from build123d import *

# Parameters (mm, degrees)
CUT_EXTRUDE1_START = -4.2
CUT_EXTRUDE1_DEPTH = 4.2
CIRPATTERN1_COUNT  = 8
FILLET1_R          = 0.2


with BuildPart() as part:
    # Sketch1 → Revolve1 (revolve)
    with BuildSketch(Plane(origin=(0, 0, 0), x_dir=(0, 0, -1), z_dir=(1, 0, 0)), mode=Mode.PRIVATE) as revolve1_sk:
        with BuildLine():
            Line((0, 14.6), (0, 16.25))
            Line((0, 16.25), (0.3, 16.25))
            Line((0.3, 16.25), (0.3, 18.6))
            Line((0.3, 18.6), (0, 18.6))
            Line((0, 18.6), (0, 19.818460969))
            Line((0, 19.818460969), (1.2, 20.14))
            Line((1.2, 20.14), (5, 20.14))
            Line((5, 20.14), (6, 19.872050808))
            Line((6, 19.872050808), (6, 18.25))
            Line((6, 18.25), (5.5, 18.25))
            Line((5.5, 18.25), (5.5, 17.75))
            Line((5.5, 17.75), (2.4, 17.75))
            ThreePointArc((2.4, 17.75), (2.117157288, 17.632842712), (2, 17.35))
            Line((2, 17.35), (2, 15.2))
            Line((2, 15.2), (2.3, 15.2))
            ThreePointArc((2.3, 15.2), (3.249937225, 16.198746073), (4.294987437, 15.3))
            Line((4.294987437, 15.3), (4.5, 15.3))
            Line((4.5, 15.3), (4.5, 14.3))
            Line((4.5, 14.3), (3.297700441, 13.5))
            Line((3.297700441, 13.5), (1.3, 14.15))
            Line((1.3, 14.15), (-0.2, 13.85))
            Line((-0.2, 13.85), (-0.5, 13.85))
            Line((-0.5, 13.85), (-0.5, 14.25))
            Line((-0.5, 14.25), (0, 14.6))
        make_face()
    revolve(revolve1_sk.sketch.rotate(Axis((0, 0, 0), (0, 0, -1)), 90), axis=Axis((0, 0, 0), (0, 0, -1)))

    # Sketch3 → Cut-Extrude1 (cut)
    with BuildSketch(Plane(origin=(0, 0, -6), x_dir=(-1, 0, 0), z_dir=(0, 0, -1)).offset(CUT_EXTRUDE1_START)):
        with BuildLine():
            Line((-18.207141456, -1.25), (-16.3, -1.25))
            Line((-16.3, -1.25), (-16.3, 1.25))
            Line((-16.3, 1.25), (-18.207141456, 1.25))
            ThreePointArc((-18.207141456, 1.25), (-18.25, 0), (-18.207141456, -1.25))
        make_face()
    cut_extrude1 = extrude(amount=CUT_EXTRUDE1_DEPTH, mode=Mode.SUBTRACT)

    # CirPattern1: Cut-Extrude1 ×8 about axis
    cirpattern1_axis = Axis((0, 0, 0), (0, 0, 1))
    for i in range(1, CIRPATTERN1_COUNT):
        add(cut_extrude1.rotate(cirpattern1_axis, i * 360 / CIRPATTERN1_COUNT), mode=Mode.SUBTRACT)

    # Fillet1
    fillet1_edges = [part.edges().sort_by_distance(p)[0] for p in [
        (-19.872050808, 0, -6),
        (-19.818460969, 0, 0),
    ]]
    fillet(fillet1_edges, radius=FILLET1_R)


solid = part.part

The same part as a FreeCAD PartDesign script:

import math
import FreeCAD as App
import Part
import Sketcher
Q = App.Units.Quantity


def edges_at(feature, points):
    """Names of the edges that pass closest to the given points."""
    edges = feature.Shape.Edges
    near = lambda p: min(range(len(edges)), key=lambda i: edges[i].distToShape(Part.Vertex(*p))[0])
    return sorted({f"Edge{near(p) + 1}" for p in points})

doc = App.newDocument("Part")
params = doc.addObject("Spreadsheet::Sheet", "Params")
for row, (alias, value) in enumerate([
    ("sketch1_radius", "1 mm"),
    ("sketch1_radius2", "0.4 mm"),
    ("sketch1_width", "1 mm"),
    ("sketch1_width2", "0.4 mm"),
    ("sketch1_width3", "0.5 mm"),
    ("revolution_angle", "360 deg"),
    ("sketch2_radius", "18.25 mm"),
    ("sketch2_height", "2.5 mm"),
    ("pocket1_length", "4.2 mm"),
    ("fillet_radius", "0.2 mm"),
], start=1):
    params.set(f"A{row}", alias)
    params.set(f"B{row}", "=" + value)
    params.setAlias(f"B{row}", alias)

body = doc.addObject("PartDesign::Body", "Body")

sketch1 = body.newObject("Sketcher::SketchObject", "Sketch")
sketch1.AttachmentSupport = (doc.getObject("YZ_Plane"), [""])
sketch1.MapMode = "FlatFace"
sketch1.addGeometry(Part.LineSegment(App.Vector(16.25, 0, 0), App.Vector(14.6, 0, 0)), False)
sketch1.addGeometry(Part.LineSegment(App.Vector(14.6, 0, 0), App.Vector(14.25, 0.5, 0)), False)
sketch1.addGeometry(Part.LineSegment(App.Vector(14.25, 0.5, 0), App.Vector(13.85, 0.5, 0)), False)
sketch1.addGeometry(Part.LineSegment(App.Vector(13.85, 0.5, 0), App.Vector(13.85, 0.2, 0)), False)
sketch1.addGeometry(Part.LineSegment(App.Vector(13.85, 0.2, 0), App.Vector(14.15, -1.3, 0)), False)
sketch1.addGeometry(Part.LineSegment(App.Vector(14.15, -1.3, 0), App.Vector(13.5, -3.2977, 0)), False)
sketch1.addGeometry(Part.LineSegment(App.Vector(13.5, -3.2977, 0), App.Vector(14.3, -4.5, 0)), False)
sketch1.addGeometry(Part.LineSegment(App.Vector(14.3, -4.5, 0), App.Vector(15.3, -4.5, 0)), False)
sketch1.addGeometry(Part.LineSegment(App.Vector(15.3, -4.5, 0), App.Vector(15.3, -4.294987, 0)), False)
sketch1.addGeometry(Part.ArcOfCircle(Part.Circle(App.Vector(15.2, -3.3, 0), App.Vector(0, 0, 1), 1), math.radians(-84.26083), math.radians(90)), False)
sketch1.addGeometry(Part.LineSegment(App.Vector(15.2, -2.3, 0), App.Vector(15.2, -2, 0)), False)
sketch1.addGeometry(Part.LineSegment(App.Vector(15.2, -2, 0), App.Vector(17.35, -2, 0)), False)
sketch1.addGeometry(Part.ArcOfCircle(Part.Circle(App.Vector(17.35, -2.4, 0), App.Vector(0, 0, 1), 0.4), math.radians(0), math.radians(90)), False)
sketch1.addGeometry(Part.LineSegment(App.Vector(17.75, -2.4, 0), App.Vector(17.75, -5.5, 0)), False)
sketch1.addGeometry(Part.LineSegment(App.Vector(17.75, -5.5, 0), App.Vector(18.25, -5.5, 0)), False)
sketch1.addGeometry(Part.LineSegment(App.Vector(18.25, -5.5, 0), App.Vector(18.25, -6, 0)), False)
sketch1.addGeometry(Part.LineSegment(App.Vector(18.25, -6, 0), App.Vector(19.872051, -6, 0)), False)
sketch1.addGeometry(Part.LineSegment(App.Vector(19.872051, -6, 0), App.Vector(20.14, -5, 0)), False)
sketch1.addGeometry(Part.LineSegment(App.Vector(20.14, -5, 0), App.Vector(20.14, -1.2, 0)), False)
sketch1.addGeometry(Part.LineSegment(App.Vector(20.14, -1.2, 0), App.Vector(19.818461, 0, 0)), False)
sketch1.addGeometry(Part.LineSegment(App.Vector(19.818461, 0, 0), App.Vector(18.6, 0, 0)), False)
sketch1.addGeometry(Part.LineSegment(App.Vector(18.6, 0, 0), App.Vector(18.6, -0.3, 0)), False)
sketch1.addGeometry(Part.LineSegment(App.Vector(18.6, -0.3, 0), App.Vector(16.25, -0.3, 0)), False)
sketch1.addGeometry(Part.LineSegment(App.Vector(16.25, -0.3, 0), App.Vector(16.25, 0, 0)), False)
sketch1.addConstraint(Sketcher.Constraint("Coincident", 0, 2, 1, 1))
sketch1.addConstraint(Sketcher.Constraint("Coincident", 1, 2, 2, 1))
sketch1.addConstraint(Sketcher.Constraint("Coincident", 2, 2, 3, 1))
sketch1.addConstraint(Sketcher.Constraint("Coincident", 3, 2, 4, 1))
sketch1.addConstraint(Sketcher.Constraint("Coincident", 4, 2, 5, 1))
sketch1.addConstraint(Sketcher.Constraint("Coincident", 5, 2, 6, 1))
sketch1.addConstraint(Sketcher.Constraint("Coincident", 6, 2, 7, 1))
sketch1.addConstraint(Sketcher.Constraint("Coincident", 7, 2, 8, 1))
sketch1.addConstraint(Sketcher.Constraint("Coincident", 8, 2, 9, 1))
sketch1.addConstraint(Sketcher.Constraint("Coincident", 9, 2, 10, 1))
sketch1.addConstraint(Sketcher.Constraint("Coincident", 10, 2, 11, 1))
sketch1.addConstraint(Sketcher.Constraint("Tangent", 11, 2, 12, 2))
sketch1.addConstraint(Sketcher.Constraint("Tangent", 12, 1, 13, 1))
sketch1.addConstraint(Sketcher.Constraint("Coincident", 13, 2, 14, 1))
sketch1.addConstraint(Sketcher.Constraint("Coincident", 14, 2, 15, 1))
sketch1.addConstraint(Sketcher.Constraint("Coincident", 15, 2, 16, 1))
sketch1.addConstraint(Sketcher.Constraint("Coincident", 16, 2, 17, 1))
sketch1.addConstraint(Sketcher.Constraint("Coincident", 17, 2, 18, 1))
sketch1.addConstraint(Sketcher.Constraint("Coincident", 18, 2, 19, 1))
sketch1.addConstraint(Sketcher.Constraint("Coincident", 19, 2, 20, 1))
sketch1.addConstraint(Sketcher.Constraint("Coincident", 20, 2, 21, 1))
sketch1.addConstraint(Sketcher.Constraint("Coincident", 21, 2, 22, 1))
sketch1.addConstraint(Sketcher.Constraint("Coincident", 22, 2, 23, 1))
sketch1.addConstraint(Sketcher.Constraint("Coincident", 23, 2, 0, 1))
sketch1.addConstraint(Sketcher.Constraint("Horizontal", 0))
sketch1.addConstraint(Sketcher.Constraint("Horizontal", 2))
sketch1.addConstraint(Sketcher.Constraint("Vertical", 3))
sketch1.addConstraint(Sketcher.Constraint("Horizontal", 7))
sketch1.addConstraint(Sketcher.Constraint("Vertical", 8))
sketch1.addConstraint(Sketcher.Constraint("Vertical", 10))
sketch1.addConstraint(Sketcher.Constraint("Horizontal", 11))
sketch1.addConstraint(Sketcher.Constraint("Vertical", 13))
sketch1.addConstraint(Sketcher.Constraint("Horizontal", 14))
sketch1.addConstraint(Sketcher.Constraint("Vertical", 15))
sketch1.addConstraint(Sketcher.Constraint("Horizontal", 16))
sketch1.addConstraint(Sketcher.Constraint("Vertical", 18))
sketch1.addConstraint(Sketcher.Constraint("Horizontal", 20))
sketch1.addConstraint(Sketcher.Constraint("Vertical", 21))
sketch1.addConstraint(Sketcher.Constraint("Horizontal", 22))
sketch1.addConstraint(Sketcher.Constraint("Vertical", 23))
sketch1.addConstraint(Sketcher.Constraint("PointOnObject", 0, 2, -1))
sketch1.addConstraint(Sketcher.Constraint("PointOnObject", 19, 2, -1))
sketch1.addConstraint(Sketcher.Constraint("Equal", 3, 10))
sketch1.addConstraint(Sketcher.Constraint("Equal", 14, 15))
sketch1.addConstraint(Sketcher.Constraint("Equal", 10, 21))
sketch1.addConstraint(Sketcher.Constraint("Radius", 9, Q("1 mm")))
sketch1.addConstraint(Sketcher.Constraint("Radius", 12, Q("0.4 mm")))
sketch1.addConstraint(Sketcher.Constraint("DistanceX", 7, 1, 7, 2, Q("1 mm")))
sketch1.addConstraint(Sketcher.Constraint("Angle", 17, Q("75 deg")))
sketch1.addConstraint(Sketcher.Constraint("Angle", 19, Q("105 deg")))
sketch1.addConstraint(Sketcher.Constraint("DistanceX", 2, 2, 2, 1, Q("0.4 mm")))
sketch1.addConstraint(Sketcher.Constraint("DistanceX", 14, 1, 14, 2, Q("0.5 mm")))
sketch1.addConstraint(Sketcher.Constraint("DistanceY", 3, 2, 3, 1, Q("0.3 mm")))
sketch1.addConstraint(Sketcher.Constraint("DistanceY", 13, 2, 13, 1, Q("3.1 mm")))
sketch1.addConstraint(Sketcher.Constraint("DistanceY", 18, 1, 18, 2, Q("3.8 mm")))
sketch1.addConstraint(Sketcher.Constraint("DistanceY", 10, 2, -1, 1, Q("2 mm")))
sketch1.addConstraint(Sketcher.Constraint("DistanceY", 17, 2, -1, 1, Q("5 mm")))
sketch1.addConstraint(Sketcher.Constraint("DistanceY", 9, 3, 4, 2, Q("2 mm")))
sketch1.addConstraint(Sketcher.Constraint("DistanceY", 13, 2, 7, 2, Q("1 mm")))
sketch1.addConstraint(Sketcher.Constraint("DistanceX", 1, 2, 22, 2, Q("2 mm")))
sketch1.addConstraint(Sketcher.Constraint("DistanceX", 0, 2, 0, 1, Q("1.65 mm")))
sketch1.addConstraint(Sketcher.Constraint("DistanceX", 11, 1, 11, 2, Q("2.15 mm")))
sketch1.addConstraint(Sketcher.Constraint("DistanceX", 22, 2, 22, 1, Q("2.35 mm")))
sketch1.addConstraint(Sketcher.Constraint("DistanceX", -1, 1, 9, 3, Q("15.2 mm")))
sketch1.addConstraint(Sketcher.Constraint("DistanceX", -1, 1, 0, 2, Q("14.6 mm")))
sketch1.addConstraint(Sketcher.Constraint("DistanceY", -1, 1, 1, 2, Q("0.5 mm")))
sketch1.addConstraint(Sketcher.Constraint("DistanceX", -1, 1, 5, 2, Q("13.5 mm")))
sketch1.addConstraint(Sketcher.Constraint("DistanceX", -1, 1, 6, 2, Q("14.3 mm")))
sketch1.addConstraint(Sketcher.Constraint("DistanceX", -1, 1, 9, 2, Q("15.2 mm")))
sketch1.addConstraint(Sketcher.Constraint("DistanceX", 3, 2, 4, 2, Q("0.3 mm")))
sketch1.addConstraint(Sketcher.Constraint("DistanceX", -1, 1, 17, 2, Q("20.14 mm")))
sketch1.addConstraint(Sketcher.Constraint("DistanceY", 5, 2, -1, 1, Q("3.2977 mm")))
sketch1.setExpression("Constraints[45]", "Params.sketch1_radius")
sketch1.setExpression("Constraints[46]", "Params.sketch1_radius2")
sketch1.setExpression("Constraints[47]", "Params.sketch1_width")
sketch1.setExpression("Constraints[50]", "Params.sketch1_width2")
sketch1.setExpression("Constraints[51]", "Params.sketch1_width3")
revolution = body.newObject("PartDesign::Revolution", "Revolution")
revolution.Profile = sketch1
revolution.ReferenceAxis = (sketch1, ["V_Axis"])
revolution.setExpression("Angle", "Params.revolution_angle")

sketch2 = body.newObject("Sketcher::SketchObject", "Sketch001")
sketch2.AttachmentSupport = (doc.getObject("XY_Plane"), [""])
sketch2.MapMode = "FlatFace"
sketch2.AttachmentOffset = App.Placement(App.Vector(0, 0, -1.8), App.Rotation())
sketch2.addGeometry(Part.LineSegment(App.Vector(18.207141, -1.25, 0), App.Vector(16.3, -1.25, 0)), False)
sketch2.addGeometry(Part.LineSegment(App.Vector(16.3, -1.25, 0), App.Vector(16.3, 1.25, 0)), False)
sketch2.addGeometry(Part.LineSegment(App.Vector(16.3, 1.25, 0), App.Vector(18.207141, 1.25, 0)), False)
sketch2.addGeometry(Part.ArcOfCircle(Part.Circle(App.Vector(0, 0, 0), App.Vector(0, 0, 1), 18.25), math.radians(-3.927443), math.radians(3.927443)), False)
sketch2.addConstraint(Sketcher.Constraint("Coincident", 0, 2, 1, 1))
sketch2.addConstraint(Sketcher.Constraint("Coincident", 1, 2, 2, 1))
sketch2.addConstraint(Sketcher.Constraint("Coincident", 2, 2, 3, 2))
sketch2.addConstraint(Sketcher.Constraint("Coincident", 3, 1, 0, 1))
sketch2.addConstraint(Sketcher.Constraint("Horizontal", 0))
sketch2.addConstraint(Sketcher.Constraint("Vertical", 1))
sketch2.addConstraint(Sketcher.Constraint("Horizontal", 2))
sketch2.addConstraint(Sketcher.Constraint("Coincident", 3, 3, -1, 1))
sketch2.addConstraint(Sketcher.Constraint("Vertical", 2, 2, 3, 1))
sketch2.addConstraint(Sketcher.Constraint("Radius", 3, Q("18.25 mm")))
sketch2.addConstraint(Sketcher.Constraint("DistanceY", 1, 1, 1, 2, Q("2.5 mm")))
sketch2.addConstraint(Sketcher.Constraint("DistanceX", -1, 1, 0, 2, Q("16.3 mm")))
sketch2.setExpression("Constraints[9]", "Params.sketch2_radius")
sketch2.setExpression("Constraints[10]", "Params.sketch2_height")
pocket1 = body.newObject("PartDesign::Pocket", "Pocket")
pocket1.Profile = sketch2
pocket1.setExpression("Length", "Params.pocket1_length")
doc.recompute()

polarpattern = body.newObject("PartDesign::PolarPattern", "PolarPattern")
polarpattern.Originals = [pocket1]
polarpattern.Axis = (doc.getObject("Z_Axis"), [""])
polarpattern.Angle = 360
polarpattern.Occurrences = 8
body.Tip = polarpattern
doc.recompute()

fillet = body.newObject("PartDesign::Fillet", "Fillet")
fillet.Base = (polarpattern, edges_at(polarpattern, [(-19.872, 0, -6), (-19.818, 0, 0)]))
fillet.setExpression("Radius", "Params.fillet_radius")

doc.recompute()
